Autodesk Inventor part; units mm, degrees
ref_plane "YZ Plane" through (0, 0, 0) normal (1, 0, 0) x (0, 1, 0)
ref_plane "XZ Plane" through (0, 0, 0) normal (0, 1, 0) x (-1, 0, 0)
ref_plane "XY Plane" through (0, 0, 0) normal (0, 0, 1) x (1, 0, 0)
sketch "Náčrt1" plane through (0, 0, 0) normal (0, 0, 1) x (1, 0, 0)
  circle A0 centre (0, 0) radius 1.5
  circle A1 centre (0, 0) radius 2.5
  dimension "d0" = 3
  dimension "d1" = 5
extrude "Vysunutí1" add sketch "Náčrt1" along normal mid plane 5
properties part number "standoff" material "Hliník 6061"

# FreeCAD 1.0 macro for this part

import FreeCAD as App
import Part
import Sketcher

V = App.Vector

doc = App.newDocument("Part")
body = doc.addObject("PartDesign::Body", "Body")

sketch1 = body.newObject("Sketcher::SketchObject", "Sketch")
sketch1.AttachmentSupport = (doc.getObject("XY_Plane"), [""])
sketch1.MapMode = "FlatFace"
sketch1.addGeometry([
    Part.Circle(V(0, 0, 0), V(0, 0, 1), 2.5),
    Part.Circle(V(0, 0, 0), V(0, 0, 1), 1.5),
], False)
sketch1.addConstraint([
    Sketcher.Constraint("Coincident", 0, 3, -1, 1),
    Sketcher.Constraint("Coincident", 1, 3, -1, 1),
    Sketcher.Constraint("Diameter", 0, 5.0),
    Sketcher.Constraint("Diameter", 1, 3.0),
])
pad1 = body.newObject("PartDesign::Pad", "Pad")
pad1.Profile = sketch1
pad1.Length = 5
pad1.Midplane = True

doc.recompute()
